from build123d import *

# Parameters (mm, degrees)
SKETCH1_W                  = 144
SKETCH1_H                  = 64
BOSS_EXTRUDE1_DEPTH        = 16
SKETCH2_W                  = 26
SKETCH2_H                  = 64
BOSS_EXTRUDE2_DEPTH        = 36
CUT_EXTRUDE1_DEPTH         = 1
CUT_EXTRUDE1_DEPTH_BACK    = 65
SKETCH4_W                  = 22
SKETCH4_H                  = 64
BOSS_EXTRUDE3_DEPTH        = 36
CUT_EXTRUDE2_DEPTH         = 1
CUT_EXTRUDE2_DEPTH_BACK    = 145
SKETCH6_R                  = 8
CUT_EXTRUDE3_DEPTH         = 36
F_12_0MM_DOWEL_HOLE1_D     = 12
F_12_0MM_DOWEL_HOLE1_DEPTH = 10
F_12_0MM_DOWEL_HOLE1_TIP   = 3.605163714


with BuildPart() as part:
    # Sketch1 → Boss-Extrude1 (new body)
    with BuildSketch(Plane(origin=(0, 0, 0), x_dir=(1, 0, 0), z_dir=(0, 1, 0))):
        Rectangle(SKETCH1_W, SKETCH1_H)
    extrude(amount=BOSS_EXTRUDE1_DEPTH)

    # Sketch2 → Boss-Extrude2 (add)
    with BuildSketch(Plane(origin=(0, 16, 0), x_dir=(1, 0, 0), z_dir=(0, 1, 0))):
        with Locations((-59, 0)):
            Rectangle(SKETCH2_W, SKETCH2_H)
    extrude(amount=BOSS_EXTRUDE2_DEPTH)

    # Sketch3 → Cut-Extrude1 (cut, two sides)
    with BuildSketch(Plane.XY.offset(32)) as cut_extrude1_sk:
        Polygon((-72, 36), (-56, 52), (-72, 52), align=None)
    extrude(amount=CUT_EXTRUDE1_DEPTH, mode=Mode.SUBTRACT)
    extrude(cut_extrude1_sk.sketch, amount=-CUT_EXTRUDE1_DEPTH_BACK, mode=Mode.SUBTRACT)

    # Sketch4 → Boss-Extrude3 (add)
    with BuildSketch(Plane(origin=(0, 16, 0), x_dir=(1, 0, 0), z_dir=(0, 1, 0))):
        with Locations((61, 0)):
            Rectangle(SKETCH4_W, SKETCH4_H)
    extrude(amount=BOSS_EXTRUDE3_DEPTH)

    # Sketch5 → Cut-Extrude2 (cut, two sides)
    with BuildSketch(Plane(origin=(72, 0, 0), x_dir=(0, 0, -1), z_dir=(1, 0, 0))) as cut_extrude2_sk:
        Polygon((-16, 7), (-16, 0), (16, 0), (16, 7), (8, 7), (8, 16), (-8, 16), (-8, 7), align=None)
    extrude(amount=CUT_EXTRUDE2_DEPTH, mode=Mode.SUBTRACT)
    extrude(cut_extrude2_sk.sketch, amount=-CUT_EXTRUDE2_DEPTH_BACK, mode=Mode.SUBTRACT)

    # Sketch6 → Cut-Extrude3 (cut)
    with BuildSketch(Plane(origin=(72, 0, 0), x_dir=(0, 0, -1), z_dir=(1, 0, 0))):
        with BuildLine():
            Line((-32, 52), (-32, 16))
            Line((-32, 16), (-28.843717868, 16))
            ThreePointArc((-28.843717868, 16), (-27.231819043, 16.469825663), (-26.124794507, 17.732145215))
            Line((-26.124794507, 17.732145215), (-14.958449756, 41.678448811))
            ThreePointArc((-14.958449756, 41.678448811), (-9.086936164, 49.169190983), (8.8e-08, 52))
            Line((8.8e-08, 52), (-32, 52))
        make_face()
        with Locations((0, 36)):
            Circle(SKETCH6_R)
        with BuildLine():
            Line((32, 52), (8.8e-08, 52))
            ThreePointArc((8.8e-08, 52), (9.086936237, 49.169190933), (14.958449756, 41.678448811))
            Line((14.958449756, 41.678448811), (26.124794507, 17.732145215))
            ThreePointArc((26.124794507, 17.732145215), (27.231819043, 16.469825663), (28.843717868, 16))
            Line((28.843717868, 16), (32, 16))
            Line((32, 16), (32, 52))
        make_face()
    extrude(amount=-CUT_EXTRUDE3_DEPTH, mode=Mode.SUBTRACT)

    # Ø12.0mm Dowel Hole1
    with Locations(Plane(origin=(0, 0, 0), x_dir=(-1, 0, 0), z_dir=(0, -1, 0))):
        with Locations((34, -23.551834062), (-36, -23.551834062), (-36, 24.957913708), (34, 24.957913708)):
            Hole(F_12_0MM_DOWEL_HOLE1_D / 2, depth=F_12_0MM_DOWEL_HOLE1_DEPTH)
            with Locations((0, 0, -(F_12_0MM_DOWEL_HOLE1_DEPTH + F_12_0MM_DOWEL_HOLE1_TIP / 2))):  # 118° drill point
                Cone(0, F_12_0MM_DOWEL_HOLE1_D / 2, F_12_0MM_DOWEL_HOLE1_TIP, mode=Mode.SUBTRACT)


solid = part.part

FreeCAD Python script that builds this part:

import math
import FreeCAD as App
import Part
import Sketcher
from FreeCAD import Vector
Q = App.Units.Quantity


def add_polygon(sketch, points):
    """Adds a closed chain of lines whose ends are joined by coincident constraints."""
    first, n = sketch.GeometryCount, len(points)
    for a, b in zip(points, points[1:] + points[:1]):
        sketch.addGeometry(Part.LineSegment(App.Vector(*a, 0), App.Vector(*b, 0)), False)
    for i in range(n):
        sketch.addConstraint(Sketcher.Constraint("Coincident", first + i, 2, first + (i + 1) % n, 1))

doc = App.newDocument("Part")
params = doc.addObject("Spreadsheet::Sheet", "Params")
for row, (alias, value) in enumerate([
    ("sketch1_width", "144 mm"),
    ("sketch1_height", "64 mm"),
    ("pad1_length", "16 mm"),
    ("sketch2_width", "26 mm"),
    ("sketch2_height", "64 mm"),
    ("pad2_length", "36 mm"),
    ("sketch3_width", "16 mm"),
    ("sketch4_width", "22 mm"),
    ("sketch4_height", "64 mm"),
    ("pad3_length", "36 mm"),
    ("sketch5_width", "7 mm"),
    ("sketch5_width2", "9 mm"),
    ("sketch5_height", "32 mm"),
    ("sketch5_height2", "8 mm"),
    ("sketch6_diameter", "16 mm"),
    ("sketch6_radius", "3 mm"),
    ("sketch6_radius2", "16 mm"),
    ("sketch6_width", "36 mm"),
    ("sketch6_height", "32 mm"),
    ("pocket3_length", "36 mm"),
    ("sketch7_diameter", "12 mm"),
    ("hole_diameter", "12 mm"),
    ("hole_depth", "10 mm"),
], start=1):
    params.set(f"A{row}", alias)
    params.set(f"B{row}", "=" + value)
    params.setAlias(f"B{row}", alias)

body = doc.addObject("PartDesign::Body", "Body")

# Sketch on XZ plane
sketch1 = body.newObject("Sketcher::SketchObject", "Sketch")
sketch1.AttachmentSupport = (doc.getObject("XZ_Plane"), [""])
sketch1.MapMode = "FlatFace"
add_polygon(sketch1, [(-72, -32), (-72, 32), (72, 32), (72, -32)])  # lines 0-3
sketch1.addConstraint(Sketcher.Constraint("Vertical", 0))
sketch1.addConstraint(Sketcher.Constraint("Horizontal", 1))
sketch1.addConstraint(Sketcher.Constraint("Vertical", 2))
sketch1.addConstraint(Sketcher.Constraint("Horizontal", 3))
sketch1.addConstraint(Sketcher.Constraint("Symmetric", 0, 2, 2, 2, -1, 1))
sketch1.addConstraint(Sketcher.Constraint("DistanceX", 1, 1, 1, 2, Q("144 mm")))
sketch1.addConstraint(Sketcher.Constraint("DistanceY", 0, 1, 0, 2, Q("64 mm")))
sketch1.setExpression("Constraints[9]", "Params.sketch1_width")
sketch1.setExpression("Constraints[10]", "Params.sketch1_height")
pad1 = body.newObject("PartDesign::Pad", "Pad")
pad1.Profile = sketch1
pad1.setExpression("Length", "Params.pad1_length")
pad1.Reversed = True

# Sketch on XZ plane
sketch2 = body.newObject("Sketcher::SketchObject", "Sketch001")
sketch2.AttachmentSupport = (doc.getObject("XZ_Plane"), [""])
sketch2.MapMode = "FlatFace"
sketch2.AttachmentOffset = App.Placement(Vector(0, 0, -16), App.Rotation())
add_polygon(sketch2, [(-72, -32), (-72, 32), (-46, 32), (-46, -32)])  # lines 0-3
sketch2.addConstraint(Sketcher.Constraint("Vertical", 0))
sketch2.addConstraint(Sketcher.Constraint("Horizontal", 1))
sketch2.addConstraint(Sketcher.Constraint("Vertical", 2))
sketch2.addConstraint(Sketcher.Constraint("Horizontal", 3))
sketch2.addConstraint(Sketcher.Constraint("DistanceX", 1, 1, 1, 2, Q("26 mm")))
sketch2.addConstraint(Sketcher.Constraint("DistanceY", 0, 1, 0, 2, Q("64 mm")))
sketch2.addConstraint(Sketcher.Constraint("DistanceX", 0, 2, -1, 1, Q("72 mm")))
sketch2.addConstraint(Sketcher.Constraint("DistanceY", -1, 1, 0, 2, Q("32 mm")))
sketch2.setExpression("Constraints[8]", "Params.sketch2_width")
sketch2.setExpression("Constraints[9]", "Params.sketch2_height")
pad2 = body.newObject("PartDesign::Pad", "Pad001")
pad2.Profile = sketch2
pad2.setExpression("Length", "Params.pad2_length")
pad2.Reversed = True

# Sketch on XY plane
sketch3 = body.newObject("Sketcher::SketchObject", "Sketch002")
sketch3.AttachmentSupport = (doc.getObject("XY_Plane"), [""])
sketch3.MapMode = "FlatFace"
sketch3.AttachmentOffset = App.Placement(Vector(0, 0, 32), App.Rotation())
add_polygon(sketch3, [(-72, 36), (-56, 52), (-72, 52)])  # lines 0-2
sketch3.addConstraint(Sketcher.Constraint("Horizontal", 1))
sketch3.addConstraint(Sketcher.Constraint("Vertical", 2))
sketch3.addConstraint(Sketcher.Constraint("Equal", 1, 2))
sketch3.addConstraint(Sketcher.Constraint("DistanceX", 1, 2, 1, 1, Q("16 mm")))
sketch3.addConstraint(Sketcher.Constraint("DistanceX", 0, 2, -1, 1, Q("56 mm")))
sketch3.addConstraint(Sketcher.Constraint("DistanceY", -1, 1, 0, 2, Q("52 mm")))
sketch3.setExpression("Constraints[6]", "Params.sketch3_width")
pocket1 = body.newObject("PartDesign::Pocket", "Pocket")
pocket1.Profile = sketch3
pocket1.Type = "ThroughAll"
pocket1.Midplane = True

# Sketch on XZ plane
sketch4 = body.newObject("Sketcher::SketchObject", "Sketch003")
sketch4.AttachmentSupport = (doc.getObject("XZ_Plane"), [""])
sketch4.MapMode = "FlatFace"
sketch4.AttachmentOffset = App.Placement(Vector(0, 0, -16), App.Rotation())
add_polygon(sketch4, [(50, -32), (50, 32), (72, 32), (72, -32)])  # lines 0-3
sketch4.addConstraint(Sketcher.Constraint("Vertical", 0))
sketch4.addConstraint(Sketcher.Constraint("Horizontal", 1))
sketch4.addConstraint(Sketcher.Constraint("Vertical", 2))
sketch4.addConstraint(Sketcher.Constraint("Horizontal", 3))
sketch4.addConstraint(Sketcher.Constraint("DistanceX", 1, 1, 1, 2, Q("22 mm")))
sketch4.addConstraint(Sketcher.Constraint("DistanceY", 0, 1, 0, 2, Q("64 mm")))
sketch4.addConstraint(Sketcher.Constraint("DistanceX", -1, 1, 0, 2, Q("50 mm")))
sketch4.addConstraint(Sketcher.Constraint("DistanceY", -1, 1, 0, 2, Q("32 mm")))
sketch4.setExpression("Constraints[8]", "Params.sketch4_width")
sketch4.setExpression("Constraints[9]", "Params.sketch4_height")
pad3 = body.newObject("PartDesign::Pad", "Pad002")
pad3.Profile = sketch4
pad3.setExpression("Length", "Params.pad3_length")
pad3.Reversed = True

# Sketch on YZ plane
sketch5 = body.newObject("Sketcher::SketchObject", "Sketch004")
sketch5.AttachmentSupport = (doc.getObject("YZ_Plane"), [""])
sketch5.MapMode = "FlatFace"
sketch5.AttachmentOffset = App.Placement(Vector(0, 0, 72), App.Rotation())
add_polygon(sketch5, [(7, 16), (0, 16), (0, -16), (7, -16), (7, -8), (16, -8), (16, 8), (7, 8)])  # lines 0-7
sketch5.addConstraint(Sketcher.Constraint("Horizontal", 0))
sketch5.addConstraint(Sketcher.Constraint("Vertical", 1))
sketch5.addConstraint(Sketcher.Constraint("Horizontal", 2))
sketch5.addConstraint(Sketcher.Constraint("Vertical", 3))
sketch5.addConstraint(Sketcher.Constraint("Horizontal", 4))
sketch5.addConstraint(Sketcher.Constraint("Vertical", 5))
sketch5.addConstraint(Sketcher.Constraint("Horizontal", 6))
sketch5.addConstraint(Sketcher.Constraint("Vertical", 7))
sketch5.addConstraint(Sketcher.Constraint("Symmetric", 0, 2, 1, 2, -1, 1))
sketch5.addConstraint(Sketcher.Constraint("Symmetric", 3, 2, 6, 2, -1))
sketch5.addConstraint(Sketcher.Constraint("DistanceX", 0, 2, 0, 1, Q("7 mm")))
sketch5.addConstraint(Sketcher.Constraint("DistanceX", 4, 1, 4, 2, Q("9 mm")))
sketch5.addConstraint(Sketcher.Constraint("DistanceY", 1, 2, 1, 1, Q("32 mm")))
sketch5.addConstraint(Sketcher.Constraint("DistanceY", 3, 1, 3, 2, Q("8 mm")))
sketch5.setExpression("Constraints[18]", "Params.sketch5_width")
sketch5.setExpression("Constraints[19]", "Params.sketch5_width2")
sketch5.setExpression("Constraints[20]", "Params.sketch5_height")
sketch5.setExpression("Constraints[21]", "Params.sketch5_height2")
pocket2 = body.newObject("PartDesign::Pocket", "Pocket001")
pocket2.Profile = sketch5
pocket2.Type = "ThroughAll"
pocket2.Midplane = True

# Sketch on YZ plane
sketch6 = body.newObject("Sketcher::SketchObject", "Sketch005")
sketch6.AttachmentSupport = (doc.getObject("YZ_Plane"), [""])
sketch6.MapMode = "FlatFace"
sketch6.AttachmentOffset = App.Placement(Vector(0, 0, 72), App.Rotation())
sketch6.addGeometry(Part.LineSegment(Vector(52, 32, 0), Vector(16, 32, 0)), False)
sketch6.addGeometry(Part.LineSegment(Vector(16, 32, 0), Vector(16, 28.843718, 0)), False)
sketch6.addGeometry(Part.ArcOfCircle(Part.Circle(Vector(19, 28.843718, 0), Vector(0, 0, 1), 3), math.radians(-180), math.radians(-115)), False)
sketch6.addGeometry(Part.LineSegment(Vector(17.732145, 26.124795, 0), Vector(41.678449, 14.95845, 0)), False)
sketch6.addGeometry(Part.ArcOfCircle(Part.Circle(Vector(36, 0, 0), Vector(0, 0, 1), 16), math.radians(0), math.radians(69.212497)), False)
sketch6.addGeometry(Part.LineSegment(Vector(52, 0, 0), Vector(52, 32, 0)), False)
sketch6.addGeometry(Part.Circle(Vector(36, 0, 0), Vector(0, 0, 1), 8), False)
sketch6.addGeometry(Part.LineSegment(Vector(52, -32, 0), Vector(52, 0, 0)), False)
sketch6.addGeometry(Part.ArcOfCircle(Part.Circle(Vector(36, 0, 0), Vector(0, 0, 1), 16), math.radians(-69.212497), math.radians(0)), False)
sketch6.addGeometry(Part.LineSegment(Vector(41.678449, -14.95845, 0), Vector(17.732145, -26.124795, 0)), False)
sketch6.addGeometry(Part.ArcOfCircle(Part.Circle(Vector(19, -28.843718, 0), Vector(0, 0, 1), 3), math.radians(115), math.radians(180)), False)
sketch6.addGeometry(Part.LineSegment(Vector(16, -28.843718, 0), Vector(16, -32, 0)), False)
sketch6.addGeometry(Part.LineSegment(Vector(16, -32, 0), Vector(52, -32, 0)), False)
sketch6.addConstraint(Sketcher.Constraint("Coincident", 0, 2, 1, 1))
sketch6.addConstraint(Sketcher.Constraint("Tangent", 1, 2, 2, 1))
sketch6.addConstraint(Sketcher.Constraint("Tangent", 2, 2, 3, 1))
sketch6.addConstraint(Sketcher.Constraint("Coincident", 3, 2, 4, 2))
sketch6.addConstraint(Sketcher.Constraint("Tangent", 4, 1, 5, 1))
sketch6.addConstraint(Sketcher.Constraint("Coincident", 5, 2, 0, 1))
sketch6.addConstraint(Sketcher.Constraint("Tangent", 7, 2, 8, 2))
sketch6.addConstraint(Sketcher.Constraint("Coincident", 8, 1, 9, 1))
sketch6.addConstraint(Sketcher.Constraint("Tangent", 9, 2, 10, 1))
sketch6.addConstraint(Sketcher.Constraint("Tangent", 10, 2, 11, 1))
sketch6.addConstraint(Sketcher.Constraint("Coincident", 11, 2, 12, 1))
sketch6.addConstraint(Sketcher.Constraint("Coincident", 12, 2, 7, 1))
sketch6.addConstraint(Sketcher.Constraint("Horizontal", 0))
sketch6.addConstraint(Sketcher.Constraint("Vertical", 1))
sketch6.addConstraint(Sketcher.Constraint("Vertical", 5))
sketch6.addConstraint(Sketcher.Constraint("Vertical", 7))
sketch6.addConstraint(Sketcher.Constraint("Vertical", 11))
sketch6.addConstraint(Sketcher.Constraint("Horizontal", 12))
sketch6.addConstraint(Sketcher.Constraint("Coincident", 6, 3, 4, 3))
sketch6.addConstraint(Sketcher.Constraint("Coincident", 8, 3, 4, 3))
sketch6.addConstraint(Sketcher.Constraint("Equal", 4, 8))
sketch6.addConstraint(Sketcher.Constraint("Equal", 2, 10))
sketch6.addConstraint(Sketcher.Constraint("Symmetric", 2, 3, 10, 3, -1))
sketch6.addConstraint(Sketcher.Constraint("Symmetric", 3, 2, 8, 1, -1))
sketch6.addConstraint(Sketcher.Constraint("Equal", 5, 7))
sketch6.addConstraint(Sketcher.Constraint("Diameter", 6, Q("16 mm")))
sketch6.addConstraint(Sketcher.Constraint("Radius", 2, Q("3 mm")))
sketch6.addConstraint(Sketcher.Constraint("Radius", 4, Q("16 mm")))
sketch6.addConstraint(Sketcher.Constraint("DistanceX", 0, 2, 0, 1, Q("36 mm")))
sketch6.addConstraint(Sketcher.Constraint("DistanceY", 5, 1, 5, 2, Q("32 mm")))
sketch6.addConstraint(Sketcher.Constraint("Angle", 3, Q("-25 deg")))
sketch6.addConstraint(Sketcher.Constraint("DistanceX", -1, 1, 2, 3, Q("19 mm")))
sketch6.addConstraint(Sketcher.Constraint("DistanceY", 1, 2, 1, 1, Q("3.156282 mm")))
sketch6.setExpression("Constraints[25]", "Params.sketch6_diameter")
sketch6.setExpression("Constraints[26]", "Params.sketch6_radius")
sketch6.setExpression("Constraints[27]", "Params.sketch6_radius2")
sketch6.setExpression("Constraints[28]", "Params.sketch6_width")
sketch6.setExpression("Constraints[29]", "Params.sketch6_height")
pocket3 = body.newObject("PartDesign::Pocket", "Pocket002")
pocket3.Profile = sketch6
pocket3.setExpression("Length", "Params.pocket3_length")

# Sketch on XZ plane
sketch7 = body.newObject("Sketcher::SketchObject", "Sketch006")
sketch7.AttachmentSupport = (doc.getObject("XZ_Plane"), [""])
sketch7.MapMode = "FlatFace"
sketch7.addGeometry(Part.Circle(Vector(-34, 23.551834, 0), Vector(0, 0, 1), 6), False)
sketch7.addGeometry(Part.Circle(Vector(36, 23.551834, 0), Vector(0, 0, 1), 6), False)
sketch7.addGeometry(Part.Circle(Vector(36, -24.957914, 0), Vector(0, 0, 1), 6), False)
sketch7.addGeometry(Part.Circle(Vector(-34, -24.957914, 0), Vector(0, 0, 1), 6), False)
sketch7.addConstraint(Sketcher.Constraint("Equal", 0, 1))
sketch7.addConstraint(Sketcher.Constraint("Equal", 1, 2))
sketch7.addConstraint(Sketcher.Constraint("Equal", 2, 3))
sketch7.addConstraint(Sketcher.Constraint("Horizontal", 0, 3, 1, 3))
sketch7.addConstraint(Sketcher.Constraint("Horizontal", 2, 3, 3, 3))
sketch7.addConstraint(Sketcher.Constraint("Vertical", 1, 3, 2, 3))
sketch7.addConstraint(Sketcher.Constraint("Vertical", 0, 3, 3, 3))
sketch7.addConstraint(Sketcher.Constraint("Diameter", 0, Q("12 mm")))
sketch7.addConstraint(Sketcher.Constraint("DistanceX", 0, 3, -1, 1, Q("34 mm")))
sketch7.addConstraint(Sketcher.Constraint("DistanceX", -1, 1, 1, 3, Q("36 mm")))
sketch7.addConstraint(Sketcher.Constraint("DistanceY", -1, 1, 0, 3, Q("23.551834 mm")))
sketch7.addConstraint(Sketcher.Constraint("DistanceY", 2, 3, -1, 1, Q("24.957914 mm")))
sketch7.setExpression("Constraints[7]", "Params.sketch7_diameter")
doc.recompute()
hole = body.newObject("PartDesign::Hole", "Hole")
hole.Profile = sketch7
hole.ThreadType = "None"
hole.setExpression("Diameter", "Params.hole_diameter")
hole.DepthType = "Dimension"
hole.setExpression("Depth", "Params.hole_depth")
hole.DrillPoint = "Angled"
hole.DrillPointAngle = 118

doc.recompute()
